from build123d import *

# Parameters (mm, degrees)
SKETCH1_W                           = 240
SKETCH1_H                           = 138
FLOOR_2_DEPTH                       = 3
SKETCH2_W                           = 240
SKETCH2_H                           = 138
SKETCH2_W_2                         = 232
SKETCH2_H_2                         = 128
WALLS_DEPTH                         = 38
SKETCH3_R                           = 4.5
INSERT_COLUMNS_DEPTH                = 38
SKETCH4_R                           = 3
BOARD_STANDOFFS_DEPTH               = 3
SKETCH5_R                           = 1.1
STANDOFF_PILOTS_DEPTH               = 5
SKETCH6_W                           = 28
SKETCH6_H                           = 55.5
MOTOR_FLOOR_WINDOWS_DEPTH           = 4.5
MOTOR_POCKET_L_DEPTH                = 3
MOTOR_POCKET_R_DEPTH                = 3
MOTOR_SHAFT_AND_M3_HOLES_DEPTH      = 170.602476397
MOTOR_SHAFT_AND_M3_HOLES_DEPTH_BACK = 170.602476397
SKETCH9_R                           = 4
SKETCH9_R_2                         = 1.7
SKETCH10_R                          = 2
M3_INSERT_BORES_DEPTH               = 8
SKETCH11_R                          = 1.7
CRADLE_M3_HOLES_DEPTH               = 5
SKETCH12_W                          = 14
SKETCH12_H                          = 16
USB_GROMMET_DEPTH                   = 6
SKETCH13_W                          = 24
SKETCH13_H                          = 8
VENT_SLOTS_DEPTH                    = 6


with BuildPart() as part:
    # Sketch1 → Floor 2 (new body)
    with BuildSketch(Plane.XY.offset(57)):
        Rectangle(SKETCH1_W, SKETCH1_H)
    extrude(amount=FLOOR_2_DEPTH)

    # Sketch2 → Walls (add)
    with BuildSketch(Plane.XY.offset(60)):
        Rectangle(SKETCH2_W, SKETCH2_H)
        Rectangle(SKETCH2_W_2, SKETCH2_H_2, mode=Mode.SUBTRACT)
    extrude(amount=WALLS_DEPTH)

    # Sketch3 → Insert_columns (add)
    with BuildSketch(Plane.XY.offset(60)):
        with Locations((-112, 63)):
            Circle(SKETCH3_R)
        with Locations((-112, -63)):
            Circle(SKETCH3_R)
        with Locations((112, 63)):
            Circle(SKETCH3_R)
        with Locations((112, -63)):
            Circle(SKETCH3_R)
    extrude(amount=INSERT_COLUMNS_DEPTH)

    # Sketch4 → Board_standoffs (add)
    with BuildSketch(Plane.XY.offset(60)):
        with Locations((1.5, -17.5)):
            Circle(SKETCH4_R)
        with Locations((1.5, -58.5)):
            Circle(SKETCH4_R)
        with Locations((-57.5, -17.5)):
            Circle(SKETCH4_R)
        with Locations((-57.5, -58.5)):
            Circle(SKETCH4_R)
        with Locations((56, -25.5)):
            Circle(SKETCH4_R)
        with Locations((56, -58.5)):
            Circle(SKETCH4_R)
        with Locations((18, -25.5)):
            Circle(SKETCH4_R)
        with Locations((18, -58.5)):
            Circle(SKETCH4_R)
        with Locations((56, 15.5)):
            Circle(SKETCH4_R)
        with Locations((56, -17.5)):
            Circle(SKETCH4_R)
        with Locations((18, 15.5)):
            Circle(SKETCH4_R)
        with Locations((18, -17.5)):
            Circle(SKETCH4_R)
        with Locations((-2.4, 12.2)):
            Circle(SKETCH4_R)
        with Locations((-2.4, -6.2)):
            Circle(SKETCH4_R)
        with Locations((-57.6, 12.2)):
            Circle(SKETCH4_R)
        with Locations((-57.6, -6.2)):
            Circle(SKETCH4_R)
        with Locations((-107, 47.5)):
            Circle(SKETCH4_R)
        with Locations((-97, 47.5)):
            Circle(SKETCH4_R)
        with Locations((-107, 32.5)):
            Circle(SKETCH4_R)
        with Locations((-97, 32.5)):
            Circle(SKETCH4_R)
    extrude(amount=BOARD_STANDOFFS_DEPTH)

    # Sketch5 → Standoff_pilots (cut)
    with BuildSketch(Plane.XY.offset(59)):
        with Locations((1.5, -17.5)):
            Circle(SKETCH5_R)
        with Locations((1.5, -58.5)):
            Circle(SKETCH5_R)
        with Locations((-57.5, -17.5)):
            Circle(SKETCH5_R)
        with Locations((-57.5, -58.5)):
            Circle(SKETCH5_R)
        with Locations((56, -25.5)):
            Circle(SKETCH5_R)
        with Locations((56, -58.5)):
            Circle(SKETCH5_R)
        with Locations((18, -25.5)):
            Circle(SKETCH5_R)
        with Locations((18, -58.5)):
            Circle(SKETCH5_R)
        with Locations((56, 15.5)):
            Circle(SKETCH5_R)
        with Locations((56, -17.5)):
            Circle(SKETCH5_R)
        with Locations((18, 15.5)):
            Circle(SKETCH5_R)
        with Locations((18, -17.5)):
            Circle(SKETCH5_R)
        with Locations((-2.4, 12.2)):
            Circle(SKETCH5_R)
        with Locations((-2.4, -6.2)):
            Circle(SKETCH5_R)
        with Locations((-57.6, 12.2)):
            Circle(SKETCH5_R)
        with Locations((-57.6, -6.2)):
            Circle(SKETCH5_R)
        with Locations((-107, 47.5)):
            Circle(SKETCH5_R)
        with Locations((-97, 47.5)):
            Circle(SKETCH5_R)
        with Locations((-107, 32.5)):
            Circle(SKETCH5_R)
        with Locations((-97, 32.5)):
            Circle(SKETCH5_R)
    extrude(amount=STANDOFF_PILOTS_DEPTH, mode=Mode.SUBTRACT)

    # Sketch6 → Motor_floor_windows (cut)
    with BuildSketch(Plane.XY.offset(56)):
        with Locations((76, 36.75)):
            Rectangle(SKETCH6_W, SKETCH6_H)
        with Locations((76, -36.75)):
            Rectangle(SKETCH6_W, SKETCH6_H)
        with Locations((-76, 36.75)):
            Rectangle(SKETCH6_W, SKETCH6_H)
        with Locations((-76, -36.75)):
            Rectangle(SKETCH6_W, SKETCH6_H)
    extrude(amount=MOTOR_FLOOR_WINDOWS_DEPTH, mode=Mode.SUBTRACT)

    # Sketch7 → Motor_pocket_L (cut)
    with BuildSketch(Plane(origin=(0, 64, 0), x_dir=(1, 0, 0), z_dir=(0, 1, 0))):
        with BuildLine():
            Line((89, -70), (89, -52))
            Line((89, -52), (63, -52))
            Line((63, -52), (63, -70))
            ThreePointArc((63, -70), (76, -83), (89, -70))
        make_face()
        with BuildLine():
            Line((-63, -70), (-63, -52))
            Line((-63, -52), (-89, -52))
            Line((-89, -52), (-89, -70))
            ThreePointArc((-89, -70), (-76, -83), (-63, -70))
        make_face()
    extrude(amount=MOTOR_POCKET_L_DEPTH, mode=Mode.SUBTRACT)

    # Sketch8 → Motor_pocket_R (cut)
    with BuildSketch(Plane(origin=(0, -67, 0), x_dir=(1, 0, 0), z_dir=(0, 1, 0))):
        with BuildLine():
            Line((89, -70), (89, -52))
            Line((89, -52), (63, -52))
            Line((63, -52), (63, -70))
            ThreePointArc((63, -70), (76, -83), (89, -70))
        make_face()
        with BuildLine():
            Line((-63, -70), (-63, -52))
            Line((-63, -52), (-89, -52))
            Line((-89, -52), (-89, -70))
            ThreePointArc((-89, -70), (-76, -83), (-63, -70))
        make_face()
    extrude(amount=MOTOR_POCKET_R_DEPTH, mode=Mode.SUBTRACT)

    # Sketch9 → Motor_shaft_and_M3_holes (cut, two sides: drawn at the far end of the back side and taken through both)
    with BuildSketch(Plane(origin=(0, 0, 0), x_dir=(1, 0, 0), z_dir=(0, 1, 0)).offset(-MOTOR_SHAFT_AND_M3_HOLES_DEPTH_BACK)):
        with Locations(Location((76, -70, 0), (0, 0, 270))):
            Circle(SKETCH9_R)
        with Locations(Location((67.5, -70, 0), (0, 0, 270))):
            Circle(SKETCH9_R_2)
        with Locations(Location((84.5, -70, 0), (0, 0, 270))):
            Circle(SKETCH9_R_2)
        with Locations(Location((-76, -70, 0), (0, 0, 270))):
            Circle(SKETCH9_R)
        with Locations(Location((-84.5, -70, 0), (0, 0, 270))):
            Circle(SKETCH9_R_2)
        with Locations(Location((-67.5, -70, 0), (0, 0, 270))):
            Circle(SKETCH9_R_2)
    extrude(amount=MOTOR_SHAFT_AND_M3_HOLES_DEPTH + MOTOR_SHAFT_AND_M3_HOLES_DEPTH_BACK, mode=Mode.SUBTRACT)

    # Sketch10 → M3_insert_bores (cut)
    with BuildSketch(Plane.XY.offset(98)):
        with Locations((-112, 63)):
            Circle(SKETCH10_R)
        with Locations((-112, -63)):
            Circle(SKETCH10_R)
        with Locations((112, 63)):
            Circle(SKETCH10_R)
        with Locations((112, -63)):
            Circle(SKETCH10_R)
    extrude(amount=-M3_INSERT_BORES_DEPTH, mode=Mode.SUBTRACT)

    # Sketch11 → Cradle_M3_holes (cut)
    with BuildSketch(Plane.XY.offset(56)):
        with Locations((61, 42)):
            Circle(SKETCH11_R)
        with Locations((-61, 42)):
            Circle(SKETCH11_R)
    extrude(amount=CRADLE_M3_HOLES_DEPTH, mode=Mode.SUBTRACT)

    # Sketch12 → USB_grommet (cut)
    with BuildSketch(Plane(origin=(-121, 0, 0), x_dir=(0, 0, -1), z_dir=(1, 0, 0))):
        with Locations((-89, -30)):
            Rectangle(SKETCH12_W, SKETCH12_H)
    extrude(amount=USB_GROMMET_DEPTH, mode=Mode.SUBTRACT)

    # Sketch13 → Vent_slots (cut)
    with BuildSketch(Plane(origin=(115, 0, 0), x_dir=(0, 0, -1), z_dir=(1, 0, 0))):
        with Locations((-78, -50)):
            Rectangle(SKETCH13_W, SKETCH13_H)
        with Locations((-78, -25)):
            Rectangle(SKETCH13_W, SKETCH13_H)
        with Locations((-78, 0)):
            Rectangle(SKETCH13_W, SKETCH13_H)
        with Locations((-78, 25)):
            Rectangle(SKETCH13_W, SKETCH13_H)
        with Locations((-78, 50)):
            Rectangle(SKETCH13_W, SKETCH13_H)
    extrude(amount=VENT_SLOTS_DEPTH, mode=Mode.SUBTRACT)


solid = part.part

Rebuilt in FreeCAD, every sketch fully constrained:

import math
import FreeCAD as App
import Part
import Sketcher

V = App.Vector

doc = App.newDocument("Part")
body = doc.addObject("PartDesign::Body", "Body")

# Sketch on XY plane
sketch1 = body.newObject("Sketcher::SketchObject", "Sketch")
sketch1.AttachmentSupport = (doc.getObject("XY_Plane"), [""])
sketch1.MapMode = "FlatFace"
sketch1.AttachmentOffset = App.Placement(V(0, 0, 57), App.Rotation())
sketch1.addGeometry([
    Part.LineSegment(V(-120, 69, 0), V(-120, -69, 0)),
    Part.LineSegment(V(-120, -69, 0), V(120, -69, 0)),
    Part.LineSegment(V(120, -69, 0), V(120, 69, 0)),
    Part.LineSegment(V(120, 69, 0), V(-120, 69, 0)),
], False)
sketch1.addConstraint([
    Sketcher.Constraint("Coincident", 0, 2, 1, 1),
    Sketcher.Constraint("Coincident", 1, 2, 2, 1),
    Sketcher.Constraint("Coincident", 2, 2, 3, 1),
    Sketcher.Constraint("Coincident", 3, 2, 0, 1),
    Sketcher.Constraint("Vertical", 0),
    Sketcher.Constraint("Horizontal", 1),
    Sketcher.Constraint("Vertical", 2),
    Sketcher.Constraint("Horizontal", 3),
    Sketcher.Constraint("Symmetric", 0, 2, 2, 2, -1, 1),
    Sketcher.Constraint("DistanceX", 1, 1, 1, 2, 240.0),
    Sketcher.Constraint("DistanceY", 0, 2, 0, 1, 138.0),
])
pad1 = body.newObject("PartDesign::Pad", "Pad")
pad1.Profile = sketch1
pad1.Length = 3

# Sketch on XY plane
sketch2 = body.newObject("Sketcher::SketchObject", "Sketch001")
sketch2.AttachmentSupport = (doc.getObject("XY_Plane"), [""])
sketch2.MapMode = "FlatFace"
sketch2.AttachmentOffset = App.Placement(V(0, 0, 60), App.Rotation())
sketch2.addGeometry([
    Part.LineSegment(V(-120, 69, 0), V(-120, -69, 0)),  # 0
    Part.LineSegment(V(-120, -69, 0), V(120, -69, 0)),  # 1
    Part.LineSegment(V(120, -69, 0), V(120, 69, 0)),  # 2
    Part.LineSegment(V(120, 69, 0), V(-120, 69, 0)),  # 3
    Part.LineSegment(V(116, -64, 0), V(-116, -64, 0)),  # 4
    Part.LineSegment(V(-116, -64, 0), V(-116, 64, 0)),  # 5
    Part.LineSegment(V(-116, 64, 0), V(116, 64, 0)),  # 6
    Part.LineSegment(V(116, 64, 0), V(116, -64, 0)),  # 7
], False)
sketch2.addConstraint([
    Sketcher.Constraint("Coincident", 0, 2, 1, 1),
    Sketcher.Constraint("Coincident", 1, 2, 2, 1),
    Sketcher.Constraint("Coincident", 2, 2, 3, 1),
    Sketcher.Constraint("Coincident", 3, 2, 0, 1),
    Sketcher.Constraint("Coincident", 4, 2, 5, 1),
    Sketcher.Constraint("Coincident", 5, 2, 6, 1),
    Sketcher.Constraint("Coincident", 6, 2, 7, 1),
    Sketcher.Constraint("Coincident", 7, 2, 4, 1),
    Sketcher.Constraint("Vertical", 0),
    Sketcher.Constraint("Horizontal", 1),
    Sketcher.Constraint("Vertical", 2),
    Sketcher.Constraint("Horizontal", 3),
    Sketcher.Constraint("Horizontal", 4),
    Sketcher.Constraint("Vertical", 5),
    Sketcher.Constraint("Horizontal", 6),
    Sketcher.Constraint("Vertical", 7),
    Sketcher.Constraint("Symmetric", 0, 2, 2, 2, -1, 1),
    Sketcher.Constraint("Symmetric", 4, 2, 6, 2, -1, 1),
    Sketcher.Constraint("DistanceX", 1, 1, 1, 2, 240.0),
    Sketcher.Constraint("DistanceX", 4, 2, 4, 1, 232.0),
    Sketcher.Constraint("DistanceY", 0, 2, 0, 1, 138.0),
    Sketcher.Constraint("DistanceY", 5, 1, 5, 2, 128.0),
])
pad2 = body.newObject("PartDesign::Pad", "Pad001")
pad2.Profile = sketch2
pad2.Length = 38

# Sketch on XY plane
sketch3 = body.newObject("Sketcher::SketchObject", "Sketch002")
sketch3.AttachmentSupport = (doc.getObject("XY_Plane"), [""])
sketch3.MapMode = "FlatFace"
sketch3.AttachmentOffset = App.Placement(V(0, 0, 60), App.Rotation())
sketch3.addGeometry([
    Part.Circle(V(-112, 63, 0), V(0, 0, 1), 4.5),
    Part.Circle(V(-112, -63, 0), V(0, 0, 1), 4.5),
    Part.Circle(V(112, 63, 0), V(0, 0, 1), 4.5),
    Part.Circle(V(112, -63, 0), V(0, 0, 1), 4.5),
], False)
sketch3.addConstraint([
    Sketcher.Constraint("Equal", 0, 1),
    Sketcher.Constraint("Equal", 1, 2),
    Sketcher.Constraint("Equal", 2, 3),
    Sketcher.Constraint("Symmetric", 1, 3, 2, 3, -1, 1),
    Sketcher.Constraint("Symmetric", 0, 3, 3, 3, -1, 1),
    Sketcher.Constraint("Symmetric", 0, 3, 2, 3, -2),
    Sketcher.Constraint("Diameter", 0, 9.0),
    Sketcher.Constraint("DistanceX", 0, 3, -1, 1, 112.0),
    Sketcher.Constraint("DistanceY", -1, 1, 0, 3, 63.0),
])
pad3 = body.newObject("PartDesign::Pad", "Pad002")
pad3.Profile = sketch3
pad3.Length = 38

# Sketch on XY plane
sketch4 = body.newObject("Sketcher::SketchObject", "Sketch003")
sketch4.AttachmentSupport = (doc.getObject("XY_Plane"), [""])
sketch4.MapMode = "FlatFace"
sketch4.AttachmentOffset = App.Placement(V(0, 0, 60), App.Rotation())
sketch4.addGeometry([
    Part.Circle(V(1.5, -17.5, 0), V(0, 0, 1), 3),  # 0
    Part.Circle(V(1.5, -58.5, 0), V(0, 0, 1), 3),  # 1
    Part.Circle(V(-57.5, -17.5, 0), V(0, 0, 1), 3),  # 2
    Part.Circle(V(-57.5, -58.5, 0), V(0, 0, 1), 3),  # 3
    Part.Circle(V(56, -25.5, 0), V(0, 0, 1), 3),  # 4
    Part.Circle(V(56, -58.5, 0), V(0, 0, 1), 3),  # 5
    Part.Circle(V(18, -25.5, 0), V(0, 0, 1), 3),  # 6
    Part.Circle(V(18, -58.5, 0), V(0, 0, 1), 3),  # 7
    Part.Circle(V(56, 15.5, 0), V(0, 0, 1), 3),  # 8
    Part.Circle(V(56, -17.5, 0), V(0, 0, 1), 3),  # 9
    Part.Circle(V(18, 15.5, 0), V(0, 0, 1), 3),  # 10
    Part.Circle(V(18, -17.5, 0), V(0, 0, 1), 3),  # 11
    Part.Circle(V(-2.4, 12.2, 0), V(0, 0, 1), 3),  # 12
    Part.Circle(V(-2.4, -6.2, 0), V(0, 0, 1), 3),  # 13
    Part.Circle(V(-57.6, 12.2, 0), V(0, 0, 1), 3),  # 14
    Part.Circle(V(-57.6, -6.2, 0), V(0, 0, 1), 3),  # 15
    Part.Circle(V(-107, 47.5, 0), V(0, 0, 1), 3),  # 16
    Part.Circle(V(-97, 47.5, 0), V(0, 0, 1), 3),  # 17
    Part.Circle(V(-107, 32.5, 0), V(0, 0, 1), 3),  # 18
    Part.Circle(V(-97, 32.5, 0), V(0, 0, 1), 3),  # 19
], False)
sketch4.addConstraint([
    Sketcher.Constraint("Equal", 0, 1),
    Sketcher.Constraint("Equal", 1, 2),
    Sketcher.Constraint("Equal", 2, 3),
    Sketcher.Constraint("Equal", 3, 4),
    Sketcher.Constraint("Equal", 4, 5),
    Sketcher.Constraint("Equal", 5, 6),
    Sketcher.Constraint("Equal", 6, 7),
    Sketcher.Constraint("Equal", 7, 8),
    Sketcher.Constraint("Equal", 8, 9),
    Sketcher.Constraint("Equal", 9, 10),
    Sketcher.Constraint("Equal", 10, 11),
    Sketcher.Constraint("Equal", 11, 12),
    Sketcher.Constraint("Equal", 12, 13),
    Sketcher.Constraint("Equal", 13, 14),
    Sketcher.Constraint("Equal", 14, 15),
    Sketcher.Constraint("Equal", 15, 16),
    Sketcher.Constraint("Equal", 16, 17),
    Sketcher.Constraint("Equal", 17, 18),
    Sketcher.Constraint("Equal", 18, 19),
    Sketcher.Constraint("Horizontal", 0, 3, 2, 3),
    Sketcher.Constraint("Horizontal", 1, 3, 3, 3),
    Sketcher.Constraint("Horizontal", 3, 3, 5, 3),
    Sketcher.Constraint("Horizontal", 4, 3, 6, 3),
    Sketcher.Constraint("Horizontal", 5, 3, 7, 3),
    Sketcher.Constraint("Horizontal", 2, 3, 9, 3),
    Sketcher.Constraint("Horizontal", 8, 3, 10, 3),
    Sketcher.Constraint("Horizontal", 9, 3, 11, 3),
    Sketcher.Constraint("Horizontal", 12, 3, 14, 3),
    Sketcher.Constraint("Horizontal", 13, 3, 15, 3),
    Sketcher.Constraint("Horizontal", 16, 3, 17, 3),
    Sketcher.Constraint("Horizontal", 18, 3, 19, 3),
    Sketcher.Constraint("Vertical", 0, 3, 1, 3),
    Sketcher.Constraint("Vertical", 2, 3, 3, 3),
    Sketcher.Constraint("Vertical", 4, 3, 5, 3),
    Sketcher.Constraint("Vertical", 6, 3, 7, 3),
    Sketcher.Constraint("Vertical", 5, 3, 8, 3),
    Sketcher.Constraint("Vertical", 8, 3, 9, 3),
    Sketcher.Constraint("Vertical", 7, 3, 10, 3),
    Sketcher.Constraint("Vertical", 10, 3, 11, 3),
    Sketcher.Constraint("Vertical", 12, 3, 13, 3),
    Sketcher.Constraint("Vertical", 14, 3, 15, 3),
    Sketcher.Constraint("Vertical", 16, 3, 18, 3),
    Sketcher.Constraint("Vertical", 17, 3, 19, 3),
    Sketcher.Constraint("Diameter", 0, 6.0),
    Sketcher.Constraint("DistanceX", -1, 1, 4, 3, 56.0),
    Sketcher.Constraint("DistanceX", -1, 1, 6, 3, 18.0),
    Sketcher.Constraint("DistanceX", 16, 3, -1, 1, 107.0),
    Sketcher.Constraint("DistanceX", 17, 3, -1, 1, 97.0),
    Sketcher.Constraint("DistanceY", 1, 3, 0, 3, 41.0),
    Sketcher.Constraint("DistanceX", 2, 3, 0, 3, 59.0),
    Sketcher.Constraint("DistanceY", 4, 3, 0, 3, 8.0),
    Sketcher.Constraint("DistanceY", 4, 3, 8, 3, 41.0),
    Sketcher.Constraint("DistanceY", 2, 3, 16, 3, 65.0),
    Sketcher.Constraint("DistanceY", 18, 3, 16, 3, 15.0),
    Sketcher.Constraint("DistanceX", -1, 1, 0, 3, 1.5),
    Sketcher.Constraint("DistanceY", 0, 3, -1, 1, 17.5),
    Sketcher.Constraint("DistanceX", 12, 3, -1, 1, 2.4),
    Sketcher.Constraint("DistanceY", -1, 1, 12, 3, 12.2),
    Sketcher.Constraint("DistanceY", 13, 3, -1, 1, 6.2),
    Sketcher.Constraint("DistanceX", 14, 3, -1, 1, 57.6),
])
pad4 = body.newObject("PartDesign::Pad", "Pad003")
pad4.Profile = sketch4
pad4.Length = 3

# Sketch on XY plane
sketch5 = body.newObject("Sketcher::SketchObject", "Sketch004")
sketch5.AttachmentSupport = (doc.getObject("XY_Plane"), [""])
sketch5.MapMode = "FlatFace"
sketch5.AttachmentOffset = App.Placement(V(0, 0, 59), App.Rotation())
sketch5.addGeometry([
    Part.Circle(V(1.5, -17.5, 0), V(0, 0, 1), 1.1),  # 0
    Part.Circle(V(1.5, -58.5, 0), V(0, 0, 1), 1.1),  # 1
    Part.Circle(V(-57.5, -17.5, 0), V(0, 0, 1), 1.1),  # 2
    Part.Circle(V(-57.5, -58.5, 0), V(0, 0, 1), 1.1),  # 3
    Part.Circle(V(56, -25.5, 0), V(0, 0, 1), 1.1),  # 4
    Part.Circle(V(56, -58.5, 0), V(0, 0, 1), 1.1),  # 5
    Part.Circle(V(18, -25.5, 0), V(0, 0, 1), 1.1),  # 6
    Part.Circle(V(18, -58.5, 0), V(0, 0, 1), 1.1),  # 7
    Part.Circle(V(56, 15.5, 0), V(0, 0, 1), 1.1),  # 8
    Part.Circle(V(56, -17.5, 0), V(0, 0, 1), 1.1),  # 9
    Part.Circle(V(18, 15.5, 0), V(0, 0, 1), 1.1),  # 10
    Part.Circle(V(18, -17.5, 0), V(0, 0, 1), 1.1),  # 11
    Part.Circle(V(-2.4, 12.2, 0), V(0, 0, 1), 1.1),  # 12
    Part.Circle(V(-2.4, -6.2, 0), V(0, 0, 1), 1.1),  # 13
    Part.Circle(V(-57.6, 12.2, 0), V(0, 0, 1), 1.1),  # 14
    Part.Circle(V(-57.6, -6.2, 0), V(0, 0, 1), 1.1),  # 15
    Part.Circle(V(-107, 47.5, 0), V(0, 0, 1), 1.1),  # 16
    Part.Circle(V(-97, 47.5, 0), V(0, 0, 1), 1.1),  # 17
    Part.Circle(V(-107, 32.5, 0), V(0, 0, 1), 1.1),  # 18
    Part.Circle(V(-97, 32.5, 0), V(0, 0, 1), 1.1),  # 19
], False)
sketch5.addConstraint([
    Sketcher.Constraint("Equal", 0, 1),
    Sketcher.Constraint("Equal", 1, 2),
    Sketcher.Constraint("Equal", 2, 3),
    Sketcher.Constraint("Equal", 3, 4),
    Sketcher.Constraint("Equal", 4, 5),
    Sketcher.Constraint("Equal", 5, 6),
    Sketcher.Constraint("Equal", 6, 7),
    Sketcher.Constraint("Equal", 7, 8),
    Sketcher.Constraint("Equal", 8, 9),
    Sketcher.Constraint("Equal", 9, 10),
    Sketcher.Constraint("Equal", 10, 11),
    Sketcher.Constraint("Equal", 11, 12),
    Sketcher.Constraint("Equal", 12, 13),
    Sketcher.Constraint("Equal", 13, 14),
    Sketcher.Constraint("Equal", 14, 15),
    Sketcher.Constraint("Equal", 15, 16),
    Sketcher.Constraint("Equal", 16, 17),
    Sketcher.Constraint("Equal", 17, 18),
    Sketcher.Constraint("Equal", 18, 19),
    Sketcher.Constraint("Horizontal", 0, 3, 2, 3),
    Sketcher.Constraint("Horizontal", 1, 3, 3, 3),
    Sketcher.Constraint("Horizontal", 3, 3, 5, 3),
    Sketcher.Constraint("Horizontal", 4, 3, 6, 3),
    Sketcher.Constraint("Horizontal", 5, 3, 7, 3),
    Sketcher.Constraint("Horizontal", 2, 3, 9, 3),
    Sketcher.Constraint("Horizontal", 8, 3, 10, 3),
    Sketcher.Constraint("Horizontal", 9, 3, 11, 3),
    Sketcher.Constraint("Horizontal", 12, 3, 14, 3),
    Sketcher.Constraint("Horizontal", 13, 3, 15, 3),
    Sketcher.Constraint("Horizontal", 16, 3, 17, 3),
    Sketcher.Constraint("Horizontal", 18, 3, 19, 3),
    Sketcher.Constraint("Vertical", 0, 3, 1, 3),
    Sketcher.Constraint("Vertical", 2, 3, 3, 3),
    Sketcher.Constraint("Vertical", 4, 3, 5, 3),
    Sketcher.Constraint("Vertical", 6, 3, 7, 3),
    Sketcher.Constraint("Vertical", 5, 3, 8, 3),
    Sketcher.Constraint("Vertical", 8, 3, 9, 3),
    Sketcher.Constraint("Vertical", 7, 3, 10, 3),
    Sketcher.Constraint("Vertical", 10, 3, 11, 3),
    Sketcher.Constraint("Vertical", 12, 3, 13, 3),
    Sketcher.Constraint("Vertical", 14, 3, 15, 3),
    Sketcher.Constraint("Vertical", 16, 3, 18, 3),
    Sketcher.Constraint("Vertical", 17, 3, 19, 3),
    Sketcher.Constraint("Diameter", 0, 2.2),
    Sketcher.Constraint("DistanceX", -1, 1, 4, 3, 56.0),
    Sketcher.Constraint("DistanceX", -1, 1, 6, 3, 18.0),
    Sketcher.Constraint("DistanceX", 16, 3, -1, 1, 107.0),
    Sketcher.Constraint("DistanceX", 17, 3, -1, 1, 97.0),
    Sketcher.Constraint("DistanceY", 1, 3, 0, 3, 41.0),
    Sketcher.Constraint("DistanceX", 2, 3, 0, 3, 59.0),
    Sketcher.Constraint("DistanceY", 4, 3, 0, 3, 8.0),
    Sketcher.Constraint("DistanceY", 4, 3, 8, 3, 41.0),
    Sketcher.Constraint("DistanceY", 2, 3, 16, 3, 65.0),
    Sketcher.Constraint("DistanceY", 18, 3, 16, 3, 15.0),
    Sketcher.Constraint("DistanceX", -1, 1, 0, 3, 1.5),
    Sketcher.Constraint("DistanceY", 0, 3, -1, 1, 17.5),
    Sketcher.Constraint("DistanceX", 12, 3, -1, 1, 2.4),
    Sketcher.Constraint("DistanceY", -1, 1, 12, 3, 12.2),
    Sketcher.Constraint("DistanceY", 13, 3, -1, 1, 6.2),
    Sketcher.Constraint("DistanceX", 14, 3, -1, 1, 57.6),
])
pocket1 = body.newObject("PartDesign::Pocket", "Pocket")
pocket1.Profile = sketch5
pocket1.Length = 5
pocket1.Reversed = True

# Sketch on XY plane
sketch6 = body.newObject("Sketcher::SketchObject", "Sketch005")
sketch6.AttachmentSupport = (doc.getObject("XY_Plane"), [""])
sketch6.MapMode = "FlatFace"
sketch6.AttachmentOffset = App.Placement(V(0, 0, 56), App.Rotation())
sketch6.addGeometry([
    Part.LineSegment(V(62, 64.5, 0), V(62, 9, 0)),  # 0
    Part.LineSegment(V(62, 9, 0), V(90, 9, 0)),  # 1
    Part.LineSegment(V(90, 9, 0), V(90, 64.5, 0)),  # 2
    Part.LineSegment(V(90, 64.5, 0), V(62, 64.5, 0)),  # 3
    Part.LineSegment(V(62, -9, 0), V(62, -64.5, 0)),  # 4
    Part.LineSegment(V(62, -64.5, 0), V(90, -64.5, 0)),  # 5
    Part.LineSegment(V(90, -64.5, 0), V(90, -9, 0)),  # 6
    Part.LineSegment(V(90, -9, 0), V(62, -9, 0)),  # 7
    Part.LineSegment(V(-90, 64.5, 0), V(-90, 9, 0)),  # 8
    Part.LineSegment(V(-90, 9, 0), V(-62, 9, 0)),  # 9
    Part.LineSegment(V(-62, 9, 0), V(-62, 64.5, 0)),  # 10
    Part.LineSegment(V(-62, 64.5, 0), V(-90, 64.5, 0)),  # 11
    Part.LineSegment(V(-90, -9, 0), V(-90, -64.5, 0)),  # 12
    Part.LineSegment(V(-90, -64.5, 0), V(-62, -64.5, 0)),  # 13
    Part.LineSegment(V(-62, -64.5, 0), V(-62, -9, 0)),  # 14
    Part.LineSegment(V(-62, -9, 0), V(-90, -9, 0)),  # 15
], False)
sketch6.addConstraint([
    Sketcher.Constraint("Coincident", 0, 2, 1, 1),
    Sketcher.Constraint("Coincident", 1, 2, 2, 1),
    Sketcher.Constraint("Coincident", 2, 2, 3, 1),
    Sketcher.Constraint("Coincident", 3, 2, 0, 1),
    Sketcher.Constraint("Coincident", 4, 2, 5, 1),
    Sketcher.Constraint("Coincident", 5, 2, 6, 1),
    Sketcher.Constraint("Coincident", 6, 2, 7, 1),
    Sketcher.Constraint("Coincident", 7, 2, 4, 1),
    Sketcher.Constraint("Coincident", 8, 2, 9, 1),
    Sketcher.Constraint("Coincident", 9, 2, 10, 1),
    Sketcher.Constraint("Coincident", 10, 2, 11, 1),
    Sketcher.Constraint("Coincident", 11, 2, 8, 1),
    Sketcher.Constraint("Coincident", 12, 2, 13, 1),
    Sketcher.Constraint("Coincident", 13, 2, 14, 1),
    Sketcher.Constraint("Coincident", 14, 2, 15, 1),
    Sketcher.Constraint("Coincident", 15, 2, 12, 1),
    Sketcher.Constraint("Vertical", 0),
    Sketcher.Constraint("Horizontal", 1),
    Sketcher.Constraint("Vertical", 2),
    Sketcher.Constraint("Horizontal", 3),
    Sketcher.Constraint("Vertical", 4),
    Sketcher.Constraint("Horizontal", 5),
    Sketcher.Constraint("Vertical", 6),
    Sketcher.Constraint("Horizontal", 7),
    Sketcher.Constraint("Vertical", 8),
    Sketcher.Constraint("Horizontal", 9),
    Sketcher.Constraint("Vertical", 10),
    Sketcher.Constraint("Horizontal", 11),
    Sketcher.Constraint("Vertical", 12),
    Sketcher.Constraint("Horizontal", 13),
    Sketcher.Constraint("Vertical", 14),
    Sketcher.Constraint("Horizontal", 15),
    Sketcher.Constraint("Symmetric", 6, 2, 8, 2, -1, 1),
    Sketcher.Constraint("Symmetric", 4, 2, 10, 2, -1, 1),
    Sketcher.Constraint("Symmetric", 2, 2, 12, 2, -1, 1),
    Sketcher.Constraint("Symmetric", 0, 2, 14, 2, -1, 1),
    Sketcher.Constraint("Symmetric", 1, 2, 8, 2, -2),
    Sketcher.Constraint("Symmetric", 3, 2, 10, 2, -2),
    Sketcher.Constraint("DistanceX", 1, 1, 1, 2, 28.0),
    Sketcher.Constraint("DistanceY", 0, 2, 0, 1, 55.5),
    Sketcher.Constraint("DistanceX", -1, 1, 0, 2, 62.0),
    Sketcher.Constraint("DistanceY", -1, 1, 0, 2, 9.0),
])
pocket2 = body.newObject("PartDesign::Pocket", "Pocket001")
pocket2.Profile = sketch6
pocket2.Length = 4.5
pocket2.Reversed = True

# Sketch on XZ plane
sketch7 = body.newObject("Sketcher::SketchObject", "Sketch006")
sketch7.AttachmentSupport = (doc.getObject("XZ_Plane"), [""])
sketch7.MapMode = "FlatFace"
sketch7.AttachmentOffset = App.Placement(V(0, 0, -64), App.Rotation())
sketch7.addGeometry([
    Part.LineSegment(V(89, 70, 0), V(89, 52, 0)),  # 0
    Part.LineSegment(V(89, 52, 0), V(63, 52, 0)),  # 1
    Part.LineSegment(V(63, 52, 0), V(63, 70, 0)),  # 2
    Part.ArcOfCircle(Part.Circle(V(76, 70, 0), V(0, 0, 1), 13), math.radians(0), math.radians(180)),  # 3
    Part.LineSegment(V(-63, 70, 0), V(-63, 52, 0)),  # 4
    Part.LineSegment(V(-63, 52, 0), V(-89, 52, 0)),  # 5
    Part.LineSegment(V(-89, 52, 0), V(-89, 70, 0)),  # 6
    Part.ArcOfCircle(Part.Circle(V(-76, 70, 0), V(0, 0, 1), 13), math.radians(0), math.radians(180)),  # 7
], False)
sketch7.addConstraint([
    Sketcher.Constraint("Coincident", 0, 2, 1, 1),
    Sketcher.Constraint("Coincident", 1, 2, 2, 1),
    Sketcher.Constraint("Tangent", 2, 2, 3, 2),
    Sketcher.Constraint("Tangent", 3, 1, 0, 1),
    Sketcher.Constraint("Coincident", 4, 2, 5, 1),
    Sketcher.Constraint("Coincident", 5, 2, 6, 1),
    Sketcher.Constraint("Tangent", 6, 2, 7, 2),
    Sketcher.Constraint("Tangent", 7, 1, 4, 1),
    Sketcher.Constraint("Vertical", 0),
    Sketcher.Constraint("Horizontal", 1),
    Sketcher.Constraint("Vertical", 2),
    Sketcher.Constraint("Vertical", 4),
    Sketcher.Constraint("Horizontal", 5),
    Sketcher.Constraint("Vertical", 6),
    Sketcher.Constraint("Equal", 3, 7),
    Sketcher.Constraint("Symmetric", 3, 3, 7, 3, -2),
    Sketcher.Constraint("Horizontal", 1, 2, 4, 2),
    Sketcher.Constraint("Radius", 3, 13.0),
    Sketcher.Constraint("DistanceY", 0, 2, 0, 1, 18.0),
    Sketcher.Constraint("DistanceX", -1, 1, 3, 3, 76.0),
    Sketcher.Constraint("DistanceY", -1, 1, 3, 3, 70.0),
])
pocket3 = body.newObject("PartDesign::Pocket", "Pocket002")
pocket3.Profile = sketch7
pocket3.Length = 3

# Sketch on XZ plane
sketch8 = body.newObject("Sketcher::SketchObject", "Sketch007")
sketch8.AttachmentSupport = (doc.getObject("XZ_Plane"), [""])
sketch8.MapMode = "FlatFace"
sketch8.AttachmentOffset = App.Placement(V(0, 0, 67), App.Rotation())
sketch8.addGeometry([
    Part.LineSegment(V(89, 70, 0), V(89, 52, 0)),  # 0
    Part.LineSegment(V(89, 52, 0), V(63, 52, 0)),  # 1
    Part.LineSegment(V(63, 52, 0), V(63, 70, 0)),  # 2
    Part.ArcOfCircle(Part.Circle(V(76, 70, 0), V(0, 0, 1), 13), math.radians(0), math.radians(180)),  # 3
    Part.LineSegment(V(-63, 70, 0), V(-63, 52, 0)),  # 4
    Part.LineSegment(V(-63, 52, 0), V(-89, 52, 0)),  # 5
    Part.LineSegment(V(-89, 52, 0), V(-89, 70, 0)),  # 6
    Part.ArcOfCircle(Part.Circle(V(-76, 70, 0), V(0, 0, 1), 13), math.radians(0), math.radians(180)),  # 7
], False)
sketch8.addConstraint([
    Sketcher.Constraint("Coincident", 0, 2, 1, 1),
    Sketcher.Constraint("Coincident", 1, 2, 2, 1),
    Sketcher.Constraint("Tangent", 2, 2, 3, 2),
    Sketcher.Constraint("Tangent", 3, 1, 0, 1),
    Sketcher.Constraint("Coincident", 4, 2, 5, 1),
    Sketcher.Constraint("Coincident", 5, 2, 6, 1),
    Sketcher.Constraint("Tangent", 6, 2, 7, 2),
    Sketcher.Constraint("Tangent", 7, 1, 4, 1),
    Sketcher.Constraint("Vertical", 0),
    Sketcher.Constraint("Horizontal", 1),
    Sketcher.Constraint("Vertical", 2),
    Sketcher.Constraint("Vertical", 4),
    Sketcher.Constraint("Horizontal", 5),
    Sketcher.Constraint("Vertical", 6),
    Sketcher.Constraint("Equal", 3, 7),
    Sketcher.Constraint("Symmetric", 3, 3, 7, 3, -2),
    Sketcher.Constraint("Horizontal", 1, 2, 4, 2),
    Sketcher.Constraint("Radius", 3, 13.0),
    Sketcher.Constraint("DistanceY", 0, 2, 0, 1, 18.0),
    Sketcher.Constraint("DistanceX", -1, 1, 3, 3, 76.0),
    Sketcher.Constraint("DistanceY", -1, 1, 3, 3, 70.0),
])
pocket4 = body.newObject("PartDesign::Pocket", "Pocket003")
pocket4.Profile = sketch8
pocket4.Length = 3

# Sketch on XZ plane
sketch9 = body.newObject("Sketcher::SketchObject", "Sketch008")
sketch9.AttachmentSupport = (doc.getObject("XZ_Plane"), [""])
sketch9.MapMode = "FlatFace"
sketch9.addGeometry([
    Part.Circle(V(76, 70, 0), V(0, 0, 1), 4),  # 0
    Part.Circle(V(67.5, 70, 0), V(0, 0, 1), 1.7),  # 1
    Part.Circle(V(84.5, 70, 0), V(0, 0, 1), 1.7),  # 2
    Part.Circle(V(-76, 70, 0), V(0, 0, 1), 4),  # 3
    Part.Circle(V(-84.5, 70, 0), V(0, 0, 1), 1.7),  # 4
    Part.Circle(V(-67.5, 70, 0), V(0, 0, 1), 1.7),  # 5
], False)
sketch9.addConstraint([
    Sketcher.Constraint("Equal", 1, 2),
    Sketcher.Constraint("Equal", 0, 3),
    Sketcher.Constraint("Equal", 2, 4),
    Sketcher.Constraint("Equal", 4, 5),
    Sketcher.Constraint("Symmetric", 0, 3, 3, 3, -2),
    Sketcher.Constraint("Symmetric", 2, 3, 4, 3, -2),
    Sketcher.Constraint("Symmetric", 1, 3, 5, 3, -2),
    Sketcher.Constraint("Horizontal", 0, 3, 1, 3),
    Sketcher.Constraint("Horizontal", 1, 3, 2, 3),
    Sketcher.Constraint("Diameter", 0, 8.0),
    Sketcher.Constraint("Diameter", 1, 3.4),
    Sketcher.Constraint("DistanceX", -1, 1, 0, 3, 76.0),
    Sketcher.Constraint("DistanceY", -1, 1, 0, 3, 70.0),
    Sketcher.Constraint("DistanceX", 1, 3, 2, 3, 17.0),
    Sketcher.Constraint("DistanceX", 4, 3, 1, 3, 152.0),
])
pocket5 = body.newObject("PartDesign::Pocket", "Pocket004")
pocket5.Profile = sketch9
pocket5.Type = "ThroughAll"
pocket5.Midplane = True

# Sketch on XY plane
sketch10 = body.newObject("Sketcher::SketchObject", "Sketch009")
sketch10.AttachmentSupport = (doc.getObject("XY_Plane"), [""])
sketch10.MapMode = "FlatFace"
sketch10.AttachmentOffset = App.Placement(V(0, 0, 98), App.Rotation())
sketch10.addGeometry([
    Part.Circle(V(-112, 63, 0), V(0, 0, 1), 2),
    Part.Circle(V(-112, -63, 0), V(0, 0, 1), 2),
    Part.Circle(V(112, 63, 0), V(0, 0, 1), 2),
    Part.Circle(V(112, -63, 0), V(0, 0, 1), 2),
], False)
sketch10.addConstraint([
    Sketcher.Constraint("Equal", 0, 1),
    Sketcher.Constraint("Equal", 1, 2),
    Sketcher.Constraint("Equal", 2, 3),
    Sketcher.Constraint("Symmetric", 1, 3, 2, 3, -1, 1),
    Sketcher.Constraint("Symmetric", 0, 3, 3, 3, -1, 1),
    Sketcher.Constraint("Symmetric", 0, 3, 2, 3, -2),
    Sketcher.Constraint("Diameter", 0, 4.0),
    Sketcher.Constraint("DistanceX", 0, 3, -1, 1, 112.0),
    Sketcher.Constraint("DistanceY", -1, 1, 0, 3, 63.0),
])
pocket6 = body.newObject("PartDesign::Pocket", "Pocket005")
pocket6.Profile = sketch10
pocket6.Length = 8

# Sketch on XY plane
sketch11 = body.newObject("Sketcher::SketchObject", "Sketch010")
sketch11.AttachmentSupport = (doc.getObject("XY_Plane"), [""])
sketch11.MapMode = "FlatFace"
sketch11.AttachmentOffset = App.Placement(V(0, 0, 56), App.Rotation())
sketch11.addGeometry([
    Part.Circle(V(61, 42, 0), V(0, 0, 1), 1.7),
    Part.Circle(V(-61, 42, 0), V(0, 0, 1), 1.7),
], False)
sketch11.addConstraint([
    Sketcher.Constraint("Equal", 0, 1),
    Sketcher.Constraint("Symmetric", 0, 3, 1, 3, -2),
    Sketcher.Constraint("Diameter", 0, 3.4),
    Sketcher.Constraint("DistanceX", -1, 1, 0, 3, 61.0),
    Sketcher.Constraint("DistanceY", -1, 1, 0, 3, 42.0),
])
pocket7 = body.newObject("PartDesign::Pocket", "Pocket006")
pocket7.Profile = sketch11
pocket7.Length = 5
pocket7.Reversed = True

# Sketch on YZ plane
sketch12 = body.newObject("Sketcher::SketchObject", "Sketch011")
sketch12.AttachmentSupport = (doc.getObject("YZ_Plane"), [""])
sketch12.MapMode = "FlatFace"
sketch12.AttachmentOffset = App.Placement(V(0, 0, -121), App.Rotation())
sketch12.addGeometry([
    Part.LineSegment(V(-22, 96, 0), V(-38, 96, 0)),
    Part.LineSegment(V(-38, 96, 0), V(-38, 82, 0)),
    Part.LineSegment(V(-38, 82, 0), V(-22, 82, 0)),
    Part.LineSegment(V(-22, 82, 0), V(-22, 96, 0)),
], False)
sketch12.addConstraint([
    Sketcher.Constraint("Coincident", 0, 2, 1, 1),
    Sketcher.Constraint("Coincident", 1, 2, 2, 1),
    Sketcher.Constraint("Coincident", 2, 2, 3, 1),
    Sketcher.Constraint("Coincident", 3, 2, 0, 1),
    Sketcher.Constraint("Horizontal", 0),
    Sketcher.Constraint("Vertical", 1),
    Sketcher.Constraint("Horizontal", 2),
    Sketcher.Constraint("Vertical", 3),
    Sketcher.Constraint("DistanceX", 0, 2, 0, 1, 16.0),
    Sketcher.Constraint("DistanceY", 1, 2, 1, 1, 14.0),
    Sketcher.Constraint("DistanceX", 0, 2, -1, 1, 38.0),
    Sketcher.Constraint("DistanceY", -1, 1, 0, 2, 96.0),
])
pocket8 = body.newObject("PartDesign::Pocket", "Pocket007")
pocket8.Profile = sketch12
pocket8.Length = 6
pocket8.Reversed = True

# Sketch on YZ plane
sketch13 = body.newObject("Sketcher::SketchObject", "Sketch012")
sketch13.AttachmentSupport = (doc.getObject("YZ_Plane"), [""])
sketch13.MapMode = "FlatFace"
sketch13.AttachmentOffset = App.Placement(V(0, 0, 115), App.Rotation())
sketch13.addGeometry([
    Part.LineSegment(V(-46, 90, 0), V(-54, 90, 0)),  # 0
    Part.LineSegment(V(-54, 90, 0), V(-54, 66, 0)),  # 1
    Part.LineSegment(V(-54, 66, 0), V(-46, 66, 0)),  # 2
    Part.LineSegment(V(-46, 66, 0), V(-46, 90, 0)),  # 3
    Part.LineSegment(V(-21, 90, 0), V(-29, 90, 0)),  # 4
    Part.LineSegment(V(-29, 90, 0), V(-29, 66, 0)),  # 5
    Part.LineSegment(V(-29, 66, 0), V(-21, 66, 0)),  # 6
    Part.LineSegment(V(-21, 66, 0), V(-21, 90, 0)),  # 7
    Part.LineSegment(V(4, 90, 0), V(-4, 90, 0)),  # 8
    Part.LineSegment(V(-4, 90, 0), V(-4, 66, 0)),  # 9
    Part.LineSegment(V(-4, 66, 0), V(4, 66, 0)),  # 10
    Part.LineSegment(V(4, 66, 0), V(4, 90, 0)),  # 11
    Part.LineSegment(V(29, 90, 0), V(21, 90, 0)),  # 12
    Part.LineSegment(V(21, 90, 0), V(21, 66, 0)),  # 13
    Part.LineSegment(V(21, 66, 0), V(29, 66, 0)),  # 14
    Part.LineSegment(V(29, 66, 0), V(29, 90, 0)),  # 15
    Part.LineSegment(V(54, 90, 0), V(46, 90, 0)),  # 16
    Part.LineSegment(V(46, 90, 0), V(46, 66, 0)),  # 17
    Part.LineSegment(V(46, 66, 0), V(54, 66, 0)),  # 18
    Part.LineSegment(V(54, 66, 0), V(54, 90, 0)),  # 19
], False)
sketch13.addConstraint([
    Sketcher.Constraint("Coincident", 0, 2, 1, 1),
    Sketcher.Constraint("Coincident", 1, 2, 2, 1),
    Sketcher.Constraint("Coincident", 2, 2, 3, 1),
    Sketcher.Constraint("Coincident", 3, 2, 0, 1),
    Sketcher.Constraint("Coincident", 4, 2, 5, 1),
    Sketcher.Constraint("Coincident", 5, 2, 6, 1),
    Sketcher.Constraint("Coincident", 6, 2, 7, 1),
    Sketcher.Constraint("Coincident", 7, 2, 4, 1),
    Sketcher.Constraint("Coincident", 8, 2, 9, 1),
    Sketcher.Constraint("Coincident", 9, 2, 10, 1),
    Sketcher.Constraint("Coincident", 10, 2, 11, 1),
    Sketcher.Constraint("Coincident", 11, 2, 8, 1),
    Sketcher.Constraint("Coincident", 12, 2, 13, 1),
    Sketcher.Constraint("Coincident", 13, 2, 14, 1),
    Sketcher.Constraint("Coincident", 14, 2, 15, 1),
    Sketcher.Constraint("Coincident", 15, 2, 12, 1),
    Sketcher.Constraint("Coincident", 16, 2, 17, 1),
    Sketcher.Constraint("Coincident", 17, 2, 18, 1),
    Sketcher.Constraint("Coincident", 18, 2, 19, 1),
    Sketcher.Constraint("Coincident", 19, 2, 16, 1),
    Sketcher.Constraint("Horizontal", 0),
    Sketcher.Constraint("Vertical", 1),
    Sketcher.Constraint("Horizontal", 2),
    Sketcher.Constraint("Vertical", 3),
    Sketcher.Constraint("Horizontal", 4),
    Sketcher.Constraint("Vertical", 5),
    Sketcher.Constraint("Horizontal", 6),
    Sketcher.Constraint("Vertical", 7),
    Sketcher.Constraint("Horizontal", 8),
    Sketcher.Constraint("Vertical", 9),
    Sketcher.Constraint("Horizontal", 10),
    Sketcher.Constraint("Vertical", 11),
    Sketcher.Constraint("Horizontal", 12),
    Sketcher.Constraint("Vertical", 13),
    Sketcher.Constraint("Horizontal", 14),
    Sketcher.Constraint("Vertical", 15),
    Sketcher.Constraint("Horizontal", 16),
    Sketcher.Constraint("Vertical", 17),
    Sketcher.Constraint("Horizontal", 18),
    Sketcher.Constraint("Vertical", 19),
    Sketcher.Constraint("Symmetric", 7, 2, 12, 2, -2),
    Sketcher.Constraint("Symmetric", 5, 2, 14, 2, -2),
    Sketcher.Constraint("Symmetric", 3, 2, 16, 2, -2),
    Sketcher.Constraint("Symmetric", 1, 2, 18, 2, -2),
    Sketcher.Constraint("Horizontal", 3, 2, 4, 2),
    Sketcher.Constraint("Horizontal", 2, 2, 5, 2),
    Sketcher.Constraint("Horizontal", 7, 2, 8, 2),
    Sketcher.Constraint("Horizontal", 6, 2, 9, 2),
    Sketcher.Constraint("Equal", 2, 4),
    Sketcher.Constraint("Equal", 6, 8),
    Sketcher.Constraint("DistanceX", 0, 2, 0, 1, 8.0),
    Sketcher.Constraint("DistanceY", 1, 2, 1, 1, 24.0),
    Sketcher.Constraint("DistanceX", 0, 2, -1, 1, 54.0),
    Sketcher.Constraint("DistanceY", -1, 1, 0, 2, 90.0),
    Sketcher.Constraint("DistanceX", 4, 2, -1, 1, 29.0),
    Sketcher.Constraint("DistanceX", 8, 2, -1, 1, 4.0),
])
pocket9 = body.newObject("PartDesign::Pocket", "Pocket008")
pocket9.Profile = sketch13
pocket9.Length = 6
pocket9.Reversed = True

doc.recompute()
